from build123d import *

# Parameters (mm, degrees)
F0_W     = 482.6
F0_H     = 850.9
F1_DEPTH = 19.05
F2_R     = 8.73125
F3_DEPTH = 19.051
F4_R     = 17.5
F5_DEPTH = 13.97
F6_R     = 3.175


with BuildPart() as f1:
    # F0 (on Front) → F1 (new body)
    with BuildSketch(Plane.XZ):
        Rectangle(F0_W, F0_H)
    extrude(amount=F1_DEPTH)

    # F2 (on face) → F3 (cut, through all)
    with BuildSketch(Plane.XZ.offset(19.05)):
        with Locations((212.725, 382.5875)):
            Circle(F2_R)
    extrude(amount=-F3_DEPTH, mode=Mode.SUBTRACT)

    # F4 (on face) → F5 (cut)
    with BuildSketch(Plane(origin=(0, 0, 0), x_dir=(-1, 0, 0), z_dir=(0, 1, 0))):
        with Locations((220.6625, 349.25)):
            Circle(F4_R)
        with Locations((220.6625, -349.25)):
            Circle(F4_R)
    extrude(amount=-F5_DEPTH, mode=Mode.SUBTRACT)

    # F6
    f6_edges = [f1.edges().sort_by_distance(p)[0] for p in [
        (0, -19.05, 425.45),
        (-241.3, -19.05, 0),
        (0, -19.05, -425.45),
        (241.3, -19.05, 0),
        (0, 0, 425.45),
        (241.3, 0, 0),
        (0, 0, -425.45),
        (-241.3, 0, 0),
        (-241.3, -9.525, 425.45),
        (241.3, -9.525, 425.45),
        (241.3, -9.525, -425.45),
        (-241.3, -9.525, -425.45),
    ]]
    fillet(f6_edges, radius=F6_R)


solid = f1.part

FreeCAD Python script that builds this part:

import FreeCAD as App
import Part
import Sketcher

V = App.Vector
Q = App.Units.Quantity


def edges_at(feature, points):
    """Names of the edges that pass closest to the given points."""
    edges = feature.Shape.Edges
    near = lambda p: min(range(len(edges)), key=lambda i: edges[i].distToShape(Part.Vertex(*p))[0])
    return sorted({f"Edge{near(p) + 1}" for p in points})

doc = App.newDocument("Part")
body = doc.addObject("PartDesign::Body", "Body")

sketch1 = body.newObject("Sketcher::SketchObject", "Sketch")
sketch1.AttachmentSupport = (doc.getObject("XZ_Plane"), [""])
sketch1.MapMode = "FlatFace"
sketch1.addGeometry([
    Part.LineSegment(V(-241, 425, 0), V(-241, -425, 0)),
    Part.LineSegment(V(-241, -425, 0), V(241, -425, 0)),
    Part.LineSegment(V(241, -425, 0), V(241, 425, 0)),
    Part.LineSegment(V(241, 425, 0), V(-241, 425, 0)),
], False)
sketch1.addConstraint([
    Sketcher.Constraint("Coincident", 0, 2, 1, 1),
    Sketcher.Constraint("Coincident", 1, 2, 2, 1),
    Sketcher.Constraint("Coincident", 2, 2, 3, 1),
    Sketcher.Constraint("Coincident", 3, 2, 0, 1),
    Sketcher.Constraint("Vertical", 0),
    Sketcher.Constraint("Horizontal", 1),
    Sketcher.Constraint("Vertical", 2),
    Sketcher.Constraint("Horizontal", 3),
    Sketcher.Constraint("Symmetric", 0, 2, 2, 2, -1, 1),
    Sketcher.Constraint("DistanceX", 1, 1, 1, 2, Q("19 in")),
    Sketcher.Constraint("DistanceY", 0, 2, 0, 1, Q("33.5 in")),
])
pad1 = body.newObject("PartDesign::Pad", "Pad")
pad1.Profile = sketch1
pad1.Length = Q("0.75 in")

sketch2 = body.newObject("Sketcher::SketchObject", "Sketch001")
sketch2.AttachmentSupport = (doc.getObject("XZ_Plane"), [""])
sketch2.MapMode = "FlatFace"
sketch2.AttachmentOffset = App.Placement(V(0, 0, 0.75 * 25.4), App.Rotation())
sketch2.addGeometry(Part.Circle(V(213, 383, 0), V(0, 0, 1), 9), False)
sketch2.addConstraint([
    Sketcher.Constraint("Diameter", 0, Q("0.6875 in")),
    Sketcher.Constraint("DistanceX", -1, 1, 0, 3, Q("8.375 in")),
    Sketcher.Constraint("DistanceY", -1, 1, 0, 3, Q("15.0625 in")),
])
pocket1 = body.newObject("PartDesign::Pocket", "Pocket")
pocket1.Profile = sketch2
pocket1.Type = "ThroughAll"

sketch3 = body.newObject("Sketcher::SketchObject", "Sketch002")
sketch3.AttachmentSupport = (doc.getObject("XZ_Plane"), [""])
sketch3.MapMode = "FlatFace"
sketch3.addGeometry([
    Part.Circle(V(-221, 349, 0), V(0, 0, 1), 18),
    Part.Circle(V(-221, -349, 0), V(0, 0, 1), 18),
], False)
sketch3.addConstraint([
    Sketcher.Constraint("Equal", 0, 1),
    Sketcher.Constraint("Symmetric", 0, 3, 1, 3, -1),
    Sketcher.Constraint("DistanceY", 1, 3, 0, 3, Q("27.5 in")),
    Sketcher.Constraint("Diameter", 0, Q("35 mm")),
    Sketcher.Constraint("DistanceX", 0, 3, -1, 1, Q("8.6875 in")),
])
pocket2 = body.newObject("PartDesign::Pocket", "Pocket001")
pocket2.Profile = sketch3
pocket2.Length = Q("0.55 in")
pocket2.Reversed = True
doc.recompute()

fillet = body.newObject("PartDesign::Fillet", "Fillet")
fillet.Base = (pocket2, edges_at(pocket2, [
    (0, -19.05, 425.45),
    (-241.3, -19.05, 0),
    (0, -19.05, -425.45),
    (241.3, -19.05, 0),
    (0, 0, 425.45),
    (241.3, 0, 0),
    (0, 0, -425.45),
    (-241.3, 0, 0),
    (-241.3, -9.525, 425.45),
    (241.3, -9.525, 425.45),
    (241.3, -9.525, -425.45),
    (-241.3, -9.525, -425.45),
]))
fillet.Radius = Q("0.125 in")

doc.recompute()
